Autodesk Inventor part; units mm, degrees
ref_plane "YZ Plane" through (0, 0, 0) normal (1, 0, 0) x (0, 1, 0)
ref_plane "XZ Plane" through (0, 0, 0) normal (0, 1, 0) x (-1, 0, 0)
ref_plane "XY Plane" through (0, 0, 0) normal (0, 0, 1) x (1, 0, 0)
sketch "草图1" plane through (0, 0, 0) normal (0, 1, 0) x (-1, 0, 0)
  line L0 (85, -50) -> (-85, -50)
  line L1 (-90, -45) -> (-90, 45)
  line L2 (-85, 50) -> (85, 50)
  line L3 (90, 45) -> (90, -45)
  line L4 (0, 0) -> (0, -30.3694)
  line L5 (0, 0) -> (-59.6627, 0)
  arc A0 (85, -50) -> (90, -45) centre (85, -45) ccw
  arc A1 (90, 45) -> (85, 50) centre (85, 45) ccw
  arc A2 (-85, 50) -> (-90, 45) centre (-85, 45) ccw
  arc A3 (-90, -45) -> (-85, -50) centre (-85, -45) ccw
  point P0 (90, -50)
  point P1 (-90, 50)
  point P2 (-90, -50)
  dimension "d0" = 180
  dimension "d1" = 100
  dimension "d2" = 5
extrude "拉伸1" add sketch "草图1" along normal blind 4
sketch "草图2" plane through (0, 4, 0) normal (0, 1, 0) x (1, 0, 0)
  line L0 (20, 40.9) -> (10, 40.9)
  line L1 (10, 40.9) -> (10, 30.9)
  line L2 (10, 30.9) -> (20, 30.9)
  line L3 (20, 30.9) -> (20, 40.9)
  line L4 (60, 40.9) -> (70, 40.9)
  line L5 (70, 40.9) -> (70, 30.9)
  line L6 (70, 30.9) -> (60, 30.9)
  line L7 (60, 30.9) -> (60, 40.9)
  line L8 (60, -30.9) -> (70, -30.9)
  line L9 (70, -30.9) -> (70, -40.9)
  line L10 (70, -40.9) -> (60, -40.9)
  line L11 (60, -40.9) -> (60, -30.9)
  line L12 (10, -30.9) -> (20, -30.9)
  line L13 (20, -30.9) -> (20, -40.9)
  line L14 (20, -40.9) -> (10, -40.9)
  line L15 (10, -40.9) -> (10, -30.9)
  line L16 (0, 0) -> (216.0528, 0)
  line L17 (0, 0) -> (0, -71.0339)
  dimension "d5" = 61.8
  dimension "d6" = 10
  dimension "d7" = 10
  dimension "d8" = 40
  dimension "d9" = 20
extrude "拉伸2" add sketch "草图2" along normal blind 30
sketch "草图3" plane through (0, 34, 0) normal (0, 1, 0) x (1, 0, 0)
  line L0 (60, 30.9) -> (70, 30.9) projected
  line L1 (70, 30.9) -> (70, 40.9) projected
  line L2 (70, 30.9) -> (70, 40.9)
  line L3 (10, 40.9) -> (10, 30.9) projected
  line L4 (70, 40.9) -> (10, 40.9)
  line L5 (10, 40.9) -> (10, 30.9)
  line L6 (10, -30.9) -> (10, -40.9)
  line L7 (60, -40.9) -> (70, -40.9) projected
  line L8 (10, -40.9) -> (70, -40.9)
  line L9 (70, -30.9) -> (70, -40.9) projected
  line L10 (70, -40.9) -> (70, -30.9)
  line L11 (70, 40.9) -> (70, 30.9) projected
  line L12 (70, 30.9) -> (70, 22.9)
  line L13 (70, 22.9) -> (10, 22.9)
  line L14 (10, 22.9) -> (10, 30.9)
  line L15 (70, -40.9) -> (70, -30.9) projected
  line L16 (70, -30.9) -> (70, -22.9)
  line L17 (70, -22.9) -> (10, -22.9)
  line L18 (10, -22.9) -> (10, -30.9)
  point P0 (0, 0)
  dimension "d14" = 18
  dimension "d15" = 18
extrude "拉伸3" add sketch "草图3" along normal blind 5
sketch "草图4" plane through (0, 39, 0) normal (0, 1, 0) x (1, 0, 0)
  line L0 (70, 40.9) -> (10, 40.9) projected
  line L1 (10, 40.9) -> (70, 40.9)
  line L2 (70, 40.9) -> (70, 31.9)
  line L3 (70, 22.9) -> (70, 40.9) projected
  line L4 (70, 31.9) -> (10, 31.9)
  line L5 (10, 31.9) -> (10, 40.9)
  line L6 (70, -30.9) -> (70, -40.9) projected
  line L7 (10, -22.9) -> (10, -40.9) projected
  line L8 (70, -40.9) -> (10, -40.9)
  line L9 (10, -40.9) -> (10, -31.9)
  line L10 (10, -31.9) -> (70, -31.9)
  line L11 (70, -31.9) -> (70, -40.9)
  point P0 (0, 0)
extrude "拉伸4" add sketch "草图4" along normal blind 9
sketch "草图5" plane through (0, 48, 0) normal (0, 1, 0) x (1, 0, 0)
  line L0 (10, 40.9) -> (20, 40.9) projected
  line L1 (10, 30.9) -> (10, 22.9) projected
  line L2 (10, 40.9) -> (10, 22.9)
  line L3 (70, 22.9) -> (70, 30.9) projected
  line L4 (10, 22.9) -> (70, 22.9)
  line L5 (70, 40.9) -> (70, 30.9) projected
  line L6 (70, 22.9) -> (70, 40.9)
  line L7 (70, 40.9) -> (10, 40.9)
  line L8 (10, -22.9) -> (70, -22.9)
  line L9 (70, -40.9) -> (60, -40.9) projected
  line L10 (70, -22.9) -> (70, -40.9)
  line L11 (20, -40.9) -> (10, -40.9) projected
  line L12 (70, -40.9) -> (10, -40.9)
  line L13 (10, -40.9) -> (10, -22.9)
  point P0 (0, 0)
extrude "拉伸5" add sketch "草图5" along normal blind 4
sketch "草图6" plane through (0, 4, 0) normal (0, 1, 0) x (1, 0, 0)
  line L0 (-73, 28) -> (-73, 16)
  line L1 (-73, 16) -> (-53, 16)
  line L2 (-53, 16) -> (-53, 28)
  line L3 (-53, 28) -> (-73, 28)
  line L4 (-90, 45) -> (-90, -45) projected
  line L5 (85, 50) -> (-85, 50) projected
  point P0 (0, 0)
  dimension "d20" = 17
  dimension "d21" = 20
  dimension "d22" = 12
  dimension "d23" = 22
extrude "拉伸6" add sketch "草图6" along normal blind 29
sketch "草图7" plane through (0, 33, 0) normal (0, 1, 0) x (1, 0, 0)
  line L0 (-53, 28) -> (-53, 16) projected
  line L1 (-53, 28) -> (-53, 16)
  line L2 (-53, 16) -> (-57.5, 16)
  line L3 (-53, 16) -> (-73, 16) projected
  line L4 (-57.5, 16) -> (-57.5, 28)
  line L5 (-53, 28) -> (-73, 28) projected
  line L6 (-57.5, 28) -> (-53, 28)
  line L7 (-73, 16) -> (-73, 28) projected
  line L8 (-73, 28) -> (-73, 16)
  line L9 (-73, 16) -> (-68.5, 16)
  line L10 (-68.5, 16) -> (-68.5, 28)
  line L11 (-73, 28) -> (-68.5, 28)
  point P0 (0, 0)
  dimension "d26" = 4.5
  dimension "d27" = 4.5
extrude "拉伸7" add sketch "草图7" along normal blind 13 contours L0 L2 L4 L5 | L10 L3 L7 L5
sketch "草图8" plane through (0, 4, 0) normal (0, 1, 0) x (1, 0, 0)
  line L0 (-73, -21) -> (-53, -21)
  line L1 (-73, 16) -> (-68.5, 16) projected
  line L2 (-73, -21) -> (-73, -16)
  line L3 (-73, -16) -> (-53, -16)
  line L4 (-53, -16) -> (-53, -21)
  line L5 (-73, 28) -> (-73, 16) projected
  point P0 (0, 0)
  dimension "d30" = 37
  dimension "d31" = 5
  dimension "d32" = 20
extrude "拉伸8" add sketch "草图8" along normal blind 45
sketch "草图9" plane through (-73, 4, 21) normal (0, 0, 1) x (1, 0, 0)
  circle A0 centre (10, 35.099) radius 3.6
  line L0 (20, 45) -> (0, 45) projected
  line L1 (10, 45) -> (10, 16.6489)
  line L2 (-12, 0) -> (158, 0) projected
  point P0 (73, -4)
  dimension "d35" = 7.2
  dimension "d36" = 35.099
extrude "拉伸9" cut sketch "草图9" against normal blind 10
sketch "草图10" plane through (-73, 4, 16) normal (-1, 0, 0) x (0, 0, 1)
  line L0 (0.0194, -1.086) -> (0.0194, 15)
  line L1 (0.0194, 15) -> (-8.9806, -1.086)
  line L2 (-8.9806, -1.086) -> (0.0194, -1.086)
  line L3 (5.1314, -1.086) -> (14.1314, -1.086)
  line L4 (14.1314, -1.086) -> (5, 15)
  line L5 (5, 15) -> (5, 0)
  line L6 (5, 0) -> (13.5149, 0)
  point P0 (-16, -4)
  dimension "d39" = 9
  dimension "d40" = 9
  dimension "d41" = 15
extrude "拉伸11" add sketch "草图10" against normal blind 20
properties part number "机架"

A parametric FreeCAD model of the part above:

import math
import FreeCAD as App
import Part
import Sketcher

doc = App.newDocument("Part")
body = doc.addObject("PartDesign::Body", "Body")

# Sketch on XZ plane
sketch1 = body.newObject("Sketcher::SketchObject", "Sketch")
sketch1.AttachmentSupport = (doc.getObject("XZ_Plane"), [""])
sketch1.MapMode = "FlatFace"
sketch1.addGeometry([
    Part.LineSegment(App.Vector(85, -50, 0), App.Vector(-85, -50, 0)),  # 0
    Part.ArcOfCircle(Part.Circle(App.Vector(-85, -45, 0), App.Vector(0, 0, 1), 5), math.radians(180), math.radians(270)),  # 1
    Part.LineSegment(App.Vector(-90, -45, 0), App.Vector(-90, 45, 0)),  # 2
    Part.ArcOfCircle(Part.Circle(App.Vector(-85, 45, 0), App.Vector(0, 0, 1), 5), math.radians(90), math.radians(180)),  # 3
    Part.LineSegment(App.Vector(-85, 50, 0), App.Vector(85, 50, 0)),  # 4
    Part.ArcOfCircle(Part.Circle(App.Vector(85, 45, 0), App.Vector(0, 0, 1), 5), math.radians(0), math.radians(90)),  # 5
    Part.LineSegment(App.Vector(90, 45, 0), App.Vector(90, -45, 0)),  # 6
    Part.ArcOfCircle(Part.Circle(App.Vector(85, -45, 0), App.Vector(0, 0, 1), 5), math.radians(-90), math.radians(0)),  # 7
], False)
sketch1.addConstraint([
    Sketcher.Constraint("Tangent", 0, 2, 1, 2),
    Sketcher.Constraint("Tangent", 1, 1, 2, 1),
    Sketcher.Constraint("Tangent", 2, 2, 3, 2),
    Sketcher.Constraint("Tangent", 3, 1, 4, 1),
    Sketcher.Constraint("Tangent", 4, 2, 5, 2),
    Sketcher.Constraint("Tangent", 5, 1, 6, 1),
    Sketcher.Constraint("Tangent", 6, 2, 7, 2),
    Sketcher.Constraint("Tangent", 7, 1, 0, 1),
    Sketcher.Constraint("Horizontal", 0),
    Sketcher.Constraint("Vertical", 2),
    Sketcher.Constraint("Horizontal", 4),
    Sketcher.Constraint("Vertical", 6),
    Sketcher.Constraint("Equal", 1, 3),
    Sketcher.Constraint("Equal", 3, 5),
    Sketcher.Constraint("Equal", 5, 7),
    Sketcher.Constraint("Symmetric", 1, 3, 5, 3, -1, 1),
    Sketcher.Constraint("Radius", 1, 5.0),
    Sketcher.Constraint("DistanceY", 0, 2, 3, 1, 100.0),
    Sketcher.Constraint("DistanceX", 0, 2, 0, 1, 170.0),
])
pad1 = body.newObject("PartDesign::Pad", "Pad")
pad1.Profile = sketch1
pad1.Length = 4
pad1.Reversed = True

# Sketch on XZ plane
sketch2 = body.newObject("Sketcher::SketchObject", "Sketch001")
sketch2.AttachmentSupport = (doc.getObject("XZ_Plane"), [""])
sketch2.MapMode = "FlatFace"
sketch2.AttachmentOffset = App.Placement(App.Vector(0, 0, -4), App.Rotation())
sketch2.addGeometry([
    Part.LineSegment(App.Vector(20, -31, 0), App.Vector(20, -41, 0)),  # 0
    Part.LineSegment(App.Vector(20, -41, 0), App.Vector(10, -41, 0)),  # 1
    Part.LineSegment(App.Vector(10, -41, 0), App.Vector(10, -31, 0)),  # 2
    Part.LineSegment(App.Vector(10, -31, 0), App.Vector(20, -31, 0)),  # 3
    Part.LineSegment(App.Vector(70, -41, 0), App.Vector(60, -41, 0)),  # 4
    Part.LineSegment(App.Vector(60, -41, 0), App.Vector(60, -31, 0)),  # 5
    Part.LineSegment(App.Vector(60, -31, 0), App.Vector(70, -31, 0)),  # 6
    Part.LineSegment(App.Vector(70, -31, 0), App.Vector(70, -41, 0)),  # 7
    Part.LineSegment(App.Vector(70, 31, 0), App.Vector(60, 31, 0)),  # 8
    Part.LineSegment(App.Vector(60, 31, 0), App.Vector(60, 41, 0)),  # 9
    Part.LineSegment(App.Vector(60, 41, 0), App.Vector(70, 41, 0)),  # 10
    Part.LineSegment(App.Vector(70, 41, 0), App.Vector(70, 31, 0)),  # 11
    Part.LineSegment(App.Vector(20, 31, 0), App.Vector(10, 31, 0)),  # 12
    Part.LineSegment(App.Vector(10, 31, 0), App.Vector(10, 41, 0)),  # 13
    Part.LineSegment(App.Vector(10, 41, 0), App.Vector(20, 41, 0)),  # 14
    Part.LineSegment(App.Vector(20, 41, 0), App.Vector(20, 31, 0)),  # 15
], False)
sketch2.addConstraint([
    Sketcher.Constraint("Coincident", 0, 2, 1, 1),
    Sketcher.Constraint("Coincident", 1, 2, 2, 1),
    Sketcher.Constraint("Coincident", 2, 2, 3, 1),
    Sketcher.Constraint("Coincident", 3, 2, 0, 1),
    Sketcher.Constraint("Coincident", 4, 2, 5, 1),
    Sketcher.Constraint("Coincident", 5, 2, 6, 1),
    Sketcher.Constraint("Coincident", 6, 2, 7, 1),
    Sketcher.Constraint("Coincident", 7, 2, 4, 1),
    Sketcher.Constraint("Coincident", 8, 2, 9, 1),
    Sketcher.Constraint("Coincident", 9, 2, 10, 1),
    Sketcher.Constraint("Coincident", 10, 2, 11, 1),
    Sketcher.Constraint("Coincident", 11, 2, 8, 1),
    Sketcher.Constraint("Coincident", 12, 2, 13, 1),
    Sketcher.Constraint("Coincident", 13, 2, 14, 1),
    Sketcher.Constraint("Coincident", 14, 2, 15, 1),
    Sketcher.Constraint("Coincident", 15, 2, 12, 1),
    Sketcher.Constraint("Vertical", 0),
    Sketcher.Constraint("Horizontal", 1),
    Sketcher.Constraint("Vertical", 2),
    Sketcher.Constraint("Horizontal", 3),
    Sketcher.Constraint("Horizontal", 4),
    Sketcher.Constraint("Vertical", 5),
    Sketcher.Constraint("Horizontal", 6),
    Sketcher.Constraint("Vertical", 7),
    Sketcher.Constraint("Horizontal", 8),
    Sketcher.Constraint("Vertical", 9),
    Sketcher.Constraint("Horizontal", 10),
    Sketcher.Constraint("Vertical", 11),
    Sketcher.Constraint("Horizontal", 12),
    Sketcher.Constraint("Vertical", 13),
    Sketcher.Constraint("Horizontal", 14),
    Sketcher.Constraint("Vertical", 15),
    Sketcher.Constraint("Symmetric", 5, 2, 8, 2, -1),
    Sketcher.Constraint("Symmetric", 7, 2, 10, 2, -1),
    Sketcher.Constraint("Symmetric", 2, 2, 12, 2, -1),
    Sketcher.Constraint("Symmetric", 0, 2, 14, 2, -1),
    Sketcher.Constraint("Horizontal", 1, 2, 4, 2),
    Sketcher.Constraint("Horizontal", 3, 2, 5, 2),
    Sketcher.Constraint("Equal", 3, 4),
    Sketcher.Constraint("Equal", 14, 0),
    Sketcher.Constraint("DistanceX", 1, 2, 1, 1, 10.0),
    Sketcher.Constraint("DistanceX", -1, 1, 0, 2, 20.0),
    Sketcher.Constraint("DistanceX", 0, 2, 4, 2, 40.0),
    Sketcher.Constraint("DistanceY", 5, 2, 8, 2, 61.8),
])
pad2 = body.newObject("PartDesign::Pad", "Pad001")
pad2.Profile = sketch2
pad2.Length = 30
pad2.Reversed = True

# Sketch on XZ plane
sketch3 = body.newObject("Sketcher::SketchObject", "Sketch002")
sketch3.AttachmentSupport = (doc.getObject("XZ_Plane"), [""])
sketch3.MapMode = "FlatFace"
sketch3.AttachmentOffset = App.Placement(App.Vector(0, 0, -34), App.Rotation())
sketch3.addGeometry([
    Part.LineSegment(App.Vector(70, -23, 0), App.Vector(70, -41, 0)),  # 0
    Part.LineSegment(App.Vector(70, -41, 0), App.Vector(10, -41, 0)),  # 1
    Part.LineSegment(App.Vector(10, -41, 0), App.Vector(10, -23, 0)),  # 2
    Part.LineSegment(App.Vector(10, -23, 0), App.Vector(70, -23, 0)),  # 3
    Part.LineSegment(App.Vector(10, 23, 0), App.Vector(10, 41, 0)),  # 4
    Part.LineSegment(App.Vector(10, 41, 0), App.Vector(70, 41, 0)),  # 5
    Part.LineSegment(App.Vector(70, 41, 0), App.Vector(70, 23, 0)),  # 6
    Part.LineSegment(App.Vector(70, 23, 0), App.Vector(10, 23, 0)),  # 7
], False)
sketch3.addConstraint([
    Sketcher.Constraint("Coincident", 0, 2, 1, 1),
    Sketcher.Constraint("Coincident", 1, 2, 2, 1),
    Sketcher.Constraint("Coincident", 2, 2, 3, 1),
    Sketcher.Constraint("Coincident", 3, 2, 0, 1),
    Sketcher.Constraint("Coincident", 4, 2, 5, 1),
    Sketcher.Constraint("Coincident", 5, 2, 6, 1),
    Sketcher.Constraint("Coincident", 6, 2, 7, 1),
    Sketcher.Constraint("Coincident", 7, 2, 4, 1),
    Sketcher.Constraint("Vertical", 0),
    Sketcher.Constraint("Horizontal", 1),
    Sketcher.Constraint("Vertical", 2),
    Sketcher.Constraint("Horizontal", 3),
    Sketcher.Constraint("Vertical", 4),
    Sketcher.Constraint("Horizontal", 5),
    Sketcher.Constraint("Vertical", 6),
    Sketcher.Constraint("Horizontal", 7),
    Sketcher.Constraint("Symmetric", 1, 2, 4, 2, -1),
    Sketcher.Constraint("Symmetric", 3, 2, 6, 2, -1),
    Sketcher.Constraint("DistanceY", 0, 2, 0, 1, 18.0),
    Sketcher.Constraint("DistanceX", 1, 2, 1, 1, 60.0),
    Sketcher.Constraint("DistanceX", -1, 1, 0, 2, 70.0),
    Sketcher.Constraint("DistanceY", 0, 2, -1, 1, 40.9),
])
pad3 = body.newObject("PartDesign::Pad", "Pad002")
pad3.Profile = sketch3
pad3.Length = 5
pad3.Reversed = True

# Sketch on XZ plane
sketch4 = body.newObject("Sketcher::SketchObject", "Sketch003")
sketch4.AttachmentSupport = (doc.getObject("XZ_Plane"), [""])
sketch4.MapMode = "FlatFace"
sketch4.AttachmentOffset = App.Placement(App.Vector(0, 0, -39), App.Rotation())
sketch4.addGeometry([
    Part.LineSegment(App.Vector(70, -32, 0), App.Vector(70, -41, 0)),  # 0
    Part.LineSegment(App.Vector(70, -41, 0), App.Vector(10, -41, 0)),  # 1
    Part.LineSegment(App.Vector(10, -41, 0), App.Vector(10, -32, 0)),  # 2
    Part.LineSegment(App.Vector(10, -32, 0), App.Vector(70, -32, 0)),  # 3
    Part.LineSegment(App.Vector(70, 41, 0), App.Vector(70, 32, 0)),  # 4
    Part.LineSegment(App.Vector(70, 32, 0), App.Vector(10, 32, 0)),  # 5
    Part.LineSegment(App.Vector(10, 32, 0), App.Vector(10, 41, 0)),  # 6
    Part.LineSegment(App.Vector(10, 41, 0), App.Vector(70, 41, 0)),  # 7
], False)
sketch4.addConstraint([
    Sketcher.Constraint("Coincident", 0, 2, 1, 1),
    Sketcher.Constraint("Coincident", 1, 2, 2, 1),
    Sketcher.Constraint("Coincident", 2, 2, 3, 1),
    Sketcher.Constraint("Coincident", 3, 2, 0, 1),
    Sketcher.Constraint("Coincident", 4, 2, 5, 1),
    Sketcher.Constraint("Coincident", 5, 2, 6, 1),
    Sketcher.Constraint("Coincident", 6, 2, 7, 1),
    Sketcher.Constraint("Coincident", 7, 2, 4, 1),
    Sketcher.Constraint("Vertical", 0),
    Sketcher.Constraint("Horizontal", 1),
    Sketcher.Constraint("Vertical", 2),
    Sketcher.Constraint("Horizontal", 3),
    Sketcher.Constraint("Vertical", 4),
    Sketcher.Constraint("Horizontal", 5),
    Sketcher.Constraint("Vertical", 6),
    Sketcher.Constraint("Horizontal", 7),
    Sketcher.Constraint("Symmetric", 3, 2, 4, 2, -1),
    Sketcher.Constraint("Symmetric", 1, 2, 6, 2, -1),
    Sketcher.Constraint("DistanceX", 1, 2, 1, 1, 60.0),
    Sketcher.Constraint("DistanceY", 0, 2, 0, 1, 9.0),
    Sketcher.Constraint("DistanceX", -1, 1, 0, 2, 70.0),
    Sketcher.Constraint("DistanceY", 0, 2, -1, 1, 40.9),
])
pad4 = body.newObject("PartDesign::Pad", "Pad003")
pad4.Profile = sketch4
pad4.Length = 9
pad4.Reversed = True

# Sketch on XZ plane
sketch5 = body.newObject("Sketcher::SketchObject", "Sketch004")
sketch5.AttachmentSupport = (doc.getObject("XZ_Plane"), [""])
sketch5.MapMode = "FlatFace"
sketch5.AttachmentOffset = App.Placement(App.Vector(0, 0, -48), App.Rotation())
sketch5.addGeometry([
    Part.LineSegment(App.Vector(70, -41, 0), App.Vector(10, -41, 0)),  # 0
    Part.LineSegment(App.Vector(10, -41, 0), App.Vector(10, -23, 0)),  # 1
    Part.LineSegment(App.Vector(10, -23, 0), App.Vector(70, -23, 0)),  # 2
    Part.LineSegment(App.Vector(70, -23, 0), App.Vector(70, -41, 0)),  # 3
    Part.LineSegment(App.Vector(70, 23, 0), App.Vector(10, 23, 0)),  # 4
    Part.LineSegment(App.Vector(10, 23, 0), App.Vector(10, 41, 0)),  # 5
    Part.LineSegment(App.Vector(10, 41, 0), App.Vector(70, 41, 0)),  # 6
    Part.LineSegment(App.Vector(70, 41, 0), App.Vector(70, 23, 0)),  # 7
], False)
sketch5.addConstraint([
    Sketcher.Constraint("Coincident", 0, 2, 1, 1),
    Sketcher.Constraint("Coincident", 1, 2, 2, 1),
    Sketcher.Constraint("Coincident", 2, 2, 3, 1),
    Sketcher.Constraint("Coincident", 3, 2, 0, 1),
    Sketcher.Constraint("Coincident", 4, 2, 5, 1),
    Sketcher.Constraint("Coincident", 5, 2, 6, 1),
    Sketcher.Constraint("Coincident", 6, 2, 7, 1),
    Sketcher.Constraint("Coincident", 7, 2, 4, 1),
    Sketcher.Constraint("Horizontal", 0),
    Sketcher.Constraint("Vertical", 1),
    Sketcher.Constraint("Horizontal", 2),
    Sketcher.Constraint("Vertical", 3),
    Sketcher.Constraint("Horizontal", 4),
    Sketcher.Constraint("Vertical", 5),
    Sketcher.Constraint("Horizontal", 6),
    Sketcher.Constraint("Vertical", 7),
    Sketcher.Constraint("Symmetric", 1, 2, 4, 2, -1),
    Sketcher.Constraint("Symmetric", 3, 2, 6, 2, -1),
    Sketcher.Constraint("DistanceX", 0, 2, 0, 1, 60.0),
    Sketcher.Constraint("DistanceY", 1, 1, 1, 2, 18.0),
    Sketcher.Constraint("DistanceX", -1, 1, 0, 2, 10.0),
    Sketcher.Constraint("DistanceY", 0, 2, -1, 1, 40.9),
])
pad5 = body.newObject("PartDesign::Pad", "Pad004")
pad5.Profile = sketch5
pad5.Length = 4
pad5.Reversed = True

# Sketch on XZ plane
sketch6 = body.newObject("Sketcher::SketchObject", "Sketch005")
sketch6.AttachmentSupport = (doc.getObject("XZ_Plane"), [""])
sketch6.MapMode = "FlatFace"
sketch6.AttachmentOffset = App.Placement(App.Vector(0, 0, -4), App.Rotation())
sketch6.addGeometry([
    Part.LineSegment(App.Vector(-53, -28, 0), App.Vector(-73, -28, 0)),
    Part.LineSegment(App.Vector(-73, -28, 0), App.Vector(-73, -16, 0)),
    Part.LineSegment(App.Vector(-73, -16, 0), App.Vector(-53, -16, 0)),
    Part.LineSegment(App.Vector(-53, -16, 0), App.Vector(-53, -28, 0)),
], False)
sketch6.addConstraint([
    Sketcher.Constraint("Coincident", 0, 2, 1, 1),
    Sketcher.Constraint("Coincident", 1, 2, 2, 1),
    Sketcher.Constraint("Coincident", 2, 2, 3, 1),
    Sketcher.Constraint("Coincident", 3, 2, 0, 1),
    Sketcher.Constraint("Horizontal", 0),
    Sketcher.Constraint("Vertical", 1),
    Sketcher.Constraint("Horizontal", 2),
    Sketcher.Constraint("Vertical", 3),
    Sketcher.Constraint("DistanceX", 0, 2, 0, 1, 20.0),
    Sketcher.Constraint("DistanceY", 1, 1, 1, 2, 12.0),
    Sketcher.Constraint("DistanceX", 0, 2, -1, 1, 73.0),
    Sketcher.Constraint("DistanceY", 0, 2, -1, 1, 28.0),
])
pad6 = body.newObject("PartDesign::Pad", "Pad005")
pad6.Profile = sketch6
pad6.Length = 29
pad6.Reversed = True

# Sketch on XZ plane
sketch7 = body.newObject("Sketcher::SketchObject", "Sketch006")
sketch7.AttachmentSupport = (doc.getObject("XZ_Plane"), [""])
sketch7.MapMode = "FlatFace"
sketch7.AttachmentOffset = App.Placement(App.Vector(0, 0, -33), App.Rotation())
sketch7.addGeometry([
    Part.LineSegment(App.Vector(-53, -16, 0), App.Vector(-53, -28, 0)),  # 0
    Part.LineSegment(App.Vector(-53, -28, 0), App.Vector(-57.5, -28, 0)),  # 1
    Part.LineSegment(App.Vector(-57.5, -28, 0), App.Vector(-57.5, -16, 0)),  # 2
    Part.LineSegment(App.Vector(-57.5, -16, 0), App.Vector(-53, -16, 0)),  # 3
    Part.LineSegment(App.Vector(-68.5, -16, 0), App.Vector(-68.5, -28, 0)),  # 4
    Part.LineSegment(App.Vector(-68.5, -28, 0), App.Vector(-73, -28, 0)),  # 5
    Part.LineSegment(App.Vector(-73, -28, 0), App.Vector(-73, -16, 0)),  # 6
    Part.LineSegment(App.Vector(-73, -16, 0), App.Vector(-68.5, -16, 0)),  # 7
], False)
sketch7.addConstraint([
    Sketcher.Constraint("Coincident", 0, 2, 1, 1),
    Sketcher.Constraint("Coincident", 1, 2, 2, 1),
    Sketcher.Constraint("Coincident", 2, 2, 3, 1),
    Sketcher.Constraint("Coincident", 3, 2, 0, 1),
    Sketcher.Constraint("Coincident", 4, 2, 5, 1),
    Sketcher.Constraint("Coincident", 5, 2, 6, 1),
    Sketcher.Constraint("Coincident", 6, 2, 7, 1),
    Sketcher.Constraint("Coincident", 7, 2, 4, 1),
    Sketcher.Constraint("Vertical", 0),
    Sketcher.Constraint("Horizontal", 1),
    Sketcher.Constraint("Vertical", 2),
    Sketcher.Constraint("Horizontal", 3),
    Sketcher.Constraint("Vertical", 4),
    Sketcher.Constraint("Horizontal", 5),
    Sketcher.Constraint("Vertical", 6),
    Sketcher.Constraint("Horizontal", 7),
    Sketcher.Constraint("Horizontal", 1, 2, 4, 2),
    Sketcher.Constraint("Horizontal", 3, 2, 6, 2),
    Sketcher.Constraint("Equal", 3, 5),
    Sketcher.Constraint("DistanceX", 1, 2, 1, 1, 4.5),
    Sketcher.Constraint("DistanceY", 0, 2, 0, 1, 12.0),
    Sketcher.Constraint("DistanceX", 0, 2, -1, 1, 53.0),
    Sketcher.Constraint("DistanceY", 0, 2, -1, 1, 28.0),
    Sketcher.Constraint("DistanceX", 5, 2, -1, 1, 73.0),
])
pad7 = body.newObject("PartDesign::Pad", "Pad006")
pad7.Profile = sketch7
pad7.Length = 13
pad7.Reversed = True

# Sketch on XZ plane
sketch8 = body.newObject("Sketcher::SketchObject", "Sketch007")
sketch8.AttachmentSupport = (doc.getObject("XZ_Plane"), [""])
sketch8.MapMode = "FlatFace"
sketch8.AttachmentOffset = App.Placement(App.Vector(0, 0, -4), App.Rotation())
sketch8.addGeometry([
    Part.LineSegment(App.Vector(-73, 16, 0), App.Vector(-73, 21, 0)),
    Part.LineSegment(App.Vector(-73, 21, 0), App.Vector(-53, 21, 0)),
    Part.LineSegment(App.Vector(-53, 21, 0), App.Vector(-53, 16, 0)),
    Part.LineSegment(App.Vector(-53, 16, 0), App.Vector(-73, 16, 0)),
], False)
sketch8.addConstraint([
    Sketcher.Constraint("Coincident", 0, 2, 1, 1),
    Sketcher.Constraint("Coincident", 1, 2, 2, 1),
    Sketcher.Constraint("Coincident", 2, 2, 3, 1),
    Sketcher.Constraint("Coincident", 3, 2, 0, 1),
    Sketcher.Constraint("Vertical", 0),
    Sketcher.Constraint("Horizontal", 1),
    Sketcher.Constraint("Vertical", 2),
    Sketcher.Constraint("Horizontal", 3),
    Sketcher.Constraint("DistanceX", 1, 1, 1, 2, 20.0),
    Sketcher.Constraint("DistanceY", 0, 1, 0, 2, 5.0),
    Sketcher.Constraint("DistanceX", 0, 2, -1, 1, 73.0),
    Sketcher.Constraint("DistanceY", -1, 1, 0, 2, 21.0),
])
pad8 = body.newObject("PartDesign::Pad", "Pad007")
pad8.Profile = sketch8
pad8.Length = 45
pad8.Reversed = True

# Sketch on XY plane
sketch9 = body.newObject("Sketcher::SketchObject", "Sketch008")
sketch9.AttachmentSupport = (doc.getObject("XY_Plane"), [""])
sketch9.MapMode = "FlatFace"
sketch9.AttachmentOffset = App.Placement(App.Vector(0, 0, 21), App.Rotation())
sketch9.addGeometry(Part.Circle(App.Vector(-63, 39.1, 0), App.Vector(0, 0, 1), 3.6), False)
sketch9.addConstraint([
    Sketcher.Constraint("Diameter", 0, 7.2),
    Sketcher.Constraint("DistanceX", 0, 3, -1, 1, 63.0),
    Sketcher.Constraint("DistanceY", -1, 1, 0, 3, 39.099),
])
pocket1 = body.newObject("PartDesign::Pocket", "Pocket")
pocket1.Profile = sketch9
pocket1.Length = 10

# Sketch on YZ plane
sketch10 = body.newObject("Sketcher::SketchObject", "Sketch009")
sketch10.AttachmentSupport = (doc.getObject("YZ_Plane"), [""])
sketch10.MapMode = "FlatFace"
sketch10.AttachmentOffset = App.Placement(App.Vector(0, 0, -73), App.Rotation())
sketch10.addGeometry([
    Part.LineSegment(App.Vector(3, 7, 0), App.Vector(3, 16, 0)),  # 0
    Part.LineSegment(App.Vector(3, 16, 0), App.Vector(19, 16, 0)),  # 1
    Part.LineSegment(App.Vector(19, 16, 0), App.Vector(3, 7, 0)),  # 2
    Part.LineSegment(App.Vector(4, 21, 0), App.Vector(4, 30, 0)),  # 3
    Part.LineSegment(App.Vector(4, 30, 0), App.Vector(19, 21, 0)),  # 4
    Part.LineSegment(App.Vector(19, 21, 0), App.Vector(4, 21, 0)),  # 5
], False)
sketch10.addConstraint([
    Sketcher.Constraint("Coincident", 0, 2, 1, 1),
    Sketcher.Constraint("Coincident", 1, 2, 2, 1),
    Sketcher.Constraint("Coincident", 2, 2, 0, 1),
    Sketcher.Constraint("Coincident", 3, 2, 4, 1),
    Sketcher.Constraint("Coincident", 4, 2, 5, 1),
    Sketcher.Constraint("Coincident", 5, 2, 3, 1),
    Sketcher.Constraint("Vertical", 0),
    Sketcher.Constraint("Horizontal", 1),
    Sketcher.Constraint("Vertical", 3),
    Sketcher.Constraint("Horizontal", 5),
    Sketcher.Constraint("Vertical", 1, 2, 4, 2),
    Sketcher.Constraint("DistanceX", 5, 2, 5, 1, 15.0),
    Sketcher.Constraint("DistanceY", 0, 1, 0, 2, 9.0),
    Sketcher.Constraint("DistanceX", -1, 1, 1, 2, 19.0),
    Sketcher.Constraint("DistanceY", -1, 1, 4, 2, 21.0),
    Sketcher.Constraint("DistanceX", 1, 1, 1, 2, 16.086),
    Sketcher.Constraint("DistanceY", 3, 1, 3, 2, 8.515),
    Sketcher.Constraint("DistanceY", -1, 1, 0, 2, 16.0194),
])
pad9 = body.newObject("PartDesign::Pad", "Pad008")
pad9.Profile = sketch10
pad9.Length = 20

doc.recompute()
